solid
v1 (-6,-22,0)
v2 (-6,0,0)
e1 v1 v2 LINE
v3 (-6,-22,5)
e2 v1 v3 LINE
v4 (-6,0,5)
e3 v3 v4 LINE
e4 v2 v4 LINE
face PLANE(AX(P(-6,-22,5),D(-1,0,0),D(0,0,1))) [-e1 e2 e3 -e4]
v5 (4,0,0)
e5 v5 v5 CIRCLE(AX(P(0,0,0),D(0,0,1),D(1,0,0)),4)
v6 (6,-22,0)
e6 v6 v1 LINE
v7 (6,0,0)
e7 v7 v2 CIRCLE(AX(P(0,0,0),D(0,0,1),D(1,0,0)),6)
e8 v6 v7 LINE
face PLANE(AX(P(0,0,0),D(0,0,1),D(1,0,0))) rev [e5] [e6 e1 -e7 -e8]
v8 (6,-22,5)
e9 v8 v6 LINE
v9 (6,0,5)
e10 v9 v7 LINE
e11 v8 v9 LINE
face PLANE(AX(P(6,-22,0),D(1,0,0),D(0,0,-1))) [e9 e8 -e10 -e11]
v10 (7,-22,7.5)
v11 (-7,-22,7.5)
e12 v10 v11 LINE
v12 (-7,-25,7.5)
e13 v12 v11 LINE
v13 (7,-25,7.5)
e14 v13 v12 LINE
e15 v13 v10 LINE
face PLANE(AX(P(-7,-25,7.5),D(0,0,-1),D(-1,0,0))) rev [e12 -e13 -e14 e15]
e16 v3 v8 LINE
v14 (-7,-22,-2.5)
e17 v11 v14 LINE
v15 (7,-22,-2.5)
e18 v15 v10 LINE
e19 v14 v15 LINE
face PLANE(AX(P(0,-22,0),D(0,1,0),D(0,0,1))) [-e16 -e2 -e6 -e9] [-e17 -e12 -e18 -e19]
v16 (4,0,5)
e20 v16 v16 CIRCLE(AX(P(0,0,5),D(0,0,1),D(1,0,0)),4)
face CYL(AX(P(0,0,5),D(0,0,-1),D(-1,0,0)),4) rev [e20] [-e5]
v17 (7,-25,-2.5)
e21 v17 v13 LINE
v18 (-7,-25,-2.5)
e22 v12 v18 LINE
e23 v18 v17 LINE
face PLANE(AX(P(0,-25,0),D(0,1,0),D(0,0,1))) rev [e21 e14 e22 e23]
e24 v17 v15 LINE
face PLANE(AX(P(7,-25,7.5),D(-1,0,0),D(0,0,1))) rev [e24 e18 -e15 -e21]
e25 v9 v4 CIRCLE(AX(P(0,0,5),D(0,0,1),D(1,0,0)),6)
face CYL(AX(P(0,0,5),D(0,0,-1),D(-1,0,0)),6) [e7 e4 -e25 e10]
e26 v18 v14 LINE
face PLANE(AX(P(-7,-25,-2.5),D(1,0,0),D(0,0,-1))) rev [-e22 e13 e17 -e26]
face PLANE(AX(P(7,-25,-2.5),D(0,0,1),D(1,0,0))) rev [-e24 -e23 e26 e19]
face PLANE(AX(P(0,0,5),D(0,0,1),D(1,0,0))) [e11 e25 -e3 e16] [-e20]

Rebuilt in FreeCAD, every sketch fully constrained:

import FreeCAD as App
import Part
import Sketcher
from FreeCAD import Vector
Q = App.Units.Quantity

doc = App.newDocument("Part")
params = doc.addObject("Spreadsheet::Sheet", "Params")
for row, (alias, value) in enumerate([
    ("sketch1_diameter", "12 mm"),
    ("sketch1_diameter2", "8 mm"),
    ("pad1_length", "5 mm"),
    ("sketch2_width", "12 mm"),
    ("sketch2_height", "5 mm"),
    ("pad2_length", "22 mm"),
    ("sketch3_diameter", "8 mm"),
    ("sketch4_width", "14 mm"),
    ("sketch4_height", "10 mm"),
    ("pad3_length", "3 mm"),
], start=1):
    params.set(f"A{row}", alias)
    params.set(f"B{row}", "=" + value)
    params.setAlias(f"B{row}", alias)

body = doc.addObject("PartDesign::Body", "Body")

sketch1 = body.newObject("Sketcher::SketchObject", "Sketch")
sketch1.AttachmentSupport = (doc.getObject("XY_Plane"), [""])
sketch1.MapMode = "FlatFace"
sketch1.addGeometry([
    Part.Circle(Vector(0, 0, 0), Vector(0, 0, 1), 6),
    Part.Circle(Vector(0, 0, 0), Vector(0, 0, 1), 4),
], False)
sketch1.addConstraint([
    Sketcher.Constraint("Coincident", 0, 3, -1, 1),
    Sketcher.Constraint("Coincident", 1, 3, -1, 1),
    Sketcher.Constraint("Diameter", 0, Q("12 mm")),
    Sketcher.Constraint("Diameter", 1, Q("8 mm")),
])
sketch1.setExpression("Constraints[2]", "Params.sketch1_diameter")
sketch1.setExpression("Constraints[3]", "Params.sketch1_diameter2")
pad1 = body.newObject("PartDesign::Pad", "Pad")
pad1.Profile = sketch1
pad1.setExpression("Length", "Params.pad1_length")

sketch2 = body.newObject("Sketcher::SketchObject", "Sketch001")
sketch2.AttachmentSupport = (doc.getObject("XZ_Plane"), [""])
sketch2.MapMode = "FlatFace"
sketch2.addGeometry([
    Part.LineSegment(Vector(-6, 0, 0), Vector(-6, 5, 0)),
    Part.LineSegment(Vector(-6, 5, 0), Vector(6, 5, 0)),
    Part.LineSegment(Vector(6, 5, 0), Vector(6, 0, 0)),
    Part.LineSegment(Vector(6, 0, 0), Vector(-6, 0, 0)),
], False)
sketch2.addConstraint([
    Sketcher.Constraint("Coincident", 0, 2, 1, 1),
    Sketcher.Constraint("Coincident", 1, 2, 2, 1),
    Sketcher.Constraint("Coincident", 2, 2, 3, 1),
    Sketcher.Constraint("Coincident", 3, 2, 0, 1),
    Sketcher.Constraint("Vertical", 0),
    Sketcher.Constraint("Horizontal", 1),
    Sketcher.Constraint("Vertical", 2),
    Sketcher.Constraint("Horizontal", 3),
    Sketcher.Constraint("Symmetric", 2, 2, 3, 2, -1, 1),
    Sketcher.Constraint("DistanceX", 1, 1, 1, 2, Q("12 mm")),
    Sketcher.Constraint("DistanceY", 0, 1, 0, 2, Q("5 mm")),
])
sketch2.setExpression("Constraints[9]", "Params.sketch2_width")
sketch2.setExpression("Constraints[10]", "Params.sketch2_height")
pad2 = body.newObject("PartDesign::Pad", "Pad001")
pad2.Profile = sketch2
pad2.setExpression("Length", "Params.pad2_length")

sketch3 = body.newObject("Sketcher::SketchObject", "Sketch002")
sketch3.AttachmentSupport = (doc.getObject("XY_Plane"), [""])
sketch3.MapMode = "FlatFace"
sketch3.AttachmentOffset = App.Placement(Vector(0, 0, 5), App.Rotation())
sketch3.addGeometry(Part.Circle(Vector(0, 0, 0), Vector(0, 0, 1), 4), False)
sketch3.addConstraint([
    Sketcher.Constraint("Coincident", 0, 3, -1, 1),
    Sketcher.Constraint("Diameter", 0, Q("8 mm")),
])
sketch3.setExpression("Constraints[1]", "Params.sketch3_diameter")
pocket1 = body.newObject("PartDesign::Pocket", "Pocket")
pocket1.Profile = sketch3
pocket1.Type = "ThroughAll"
pocket1.Midplane = True

sketch4 = body.newObject("Sketcher::SketchObject", "Sketch003")
sketch4.AttachmentSupport = (doc.getObject("XZ_Plane"), [""])
sketch4.MapMode = "FlatFace"
sketch4.AttachmentOffset = App.Placement(Vector(0, 0, 22), App.Rotation())
sketch4.addGeometry([
    Part.LineSegment(Vector(-7, 8, 0), Vector(-7, -2, 0)),
    Part.LineSegment(Vector(-7, -2, 0), Vector(7, -2, 0)),
    Part.LineSegment(Vector(7, -2, 0), Vector(7, 8, 0)),
    Part.LineSegment(Vector(7, 8, 0), Vector(-7, 8, 0)),
], False)
sketch4.addConstraint([
    Sketcher.Constraint("Coincident", 0, 2, 1, 1),
    Sketcher.Constraint("Coincident", 1, 2, 2, 1),
    Sketcher.Constraint("Coincident", 2, 2, 3, 1),
    Sketcher.Constraint("Coincident", 3, 2, 0, 1),
    Sketcher.Constraint("Vertical", 0),
    Sketcher.Constraint("Horizontal", 1),
    Sketcher.Constraint("Vertical", 2),
    Sketcher.Constraint("Horizontal", 3),
    Sketcher.Constraint("DistanceX", 1, 1, 1, 2, Q("14 mm")),
    Sketcher.Constraint("DistanceY", 0, 2, 0, 1, Q("10 mm")),
    Sketcher.Constraint("DistanceX", 0, 2, -1, 1, Q("7 mm")),
    Sketcher.Constraint("DistanceY", 0, 2, -1, 1, Q("2.5 mm")),
])
sketch4.setExpression("Constraints[8]", "Params.sketch4_width")
sketch4.setExpression("Constraints[9]", "Params.sketch4_height")
pad3 = body.newObject("PartDesign::Pad", "Pad002")
pad3.Profile = sketch4
pad3.setExpression("Length", "Params.pad3_length")

doc.recompute()
